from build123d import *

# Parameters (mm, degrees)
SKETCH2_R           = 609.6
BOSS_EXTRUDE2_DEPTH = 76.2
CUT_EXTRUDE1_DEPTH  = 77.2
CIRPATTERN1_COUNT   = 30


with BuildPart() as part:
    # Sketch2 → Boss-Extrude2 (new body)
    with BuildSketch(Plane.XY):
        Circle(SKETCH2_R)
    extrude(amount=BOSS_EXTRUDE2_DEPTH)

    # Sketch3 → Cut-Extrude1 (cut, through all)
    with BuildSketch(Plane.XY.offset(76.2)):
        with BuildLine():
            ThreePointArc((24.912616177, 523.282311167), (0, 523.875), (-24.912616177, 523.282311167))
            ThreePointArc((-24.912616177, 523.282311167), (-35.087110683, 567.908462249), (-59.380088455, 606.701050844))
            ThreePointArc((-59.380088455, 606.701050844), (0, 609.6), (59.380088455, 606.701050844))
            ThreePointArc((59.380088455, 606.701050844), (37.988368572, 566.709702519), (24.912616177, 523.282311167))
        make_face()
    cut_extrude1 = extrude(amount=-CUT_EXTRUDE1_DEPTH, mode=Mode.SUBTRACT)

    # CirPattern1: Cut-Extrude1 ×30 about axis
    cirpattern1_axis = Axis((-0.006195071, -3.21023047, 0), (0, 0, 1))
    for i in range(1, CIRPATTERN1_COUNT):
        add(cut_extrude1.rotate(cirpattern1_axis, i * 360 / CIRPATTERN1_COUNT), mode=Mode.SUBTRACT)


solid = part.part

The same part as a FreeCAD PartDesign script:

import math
import FreeCAD as App
import Part
import Sketcher
from FreeCAD import Vector
Q = App.Units.Quantity

doc = App.newDocument("Part")
params = doc.addObject("Spreadsheet::Sheet", "Params")
for row, (alias, value) in enumerate([
    ("sketch1_diameter", "48 in"),
    ("pad1_length", "3 in"),
    ("sketch2_radius", "9 in"),
    ("sketch2_radius2", "24 in"),
    ("sketch2_radius3", "20.625 in"),
], start=1):
    params.set(f"A{row}", alias)
    params.set(f"B{row}", "=" + value)
    params.setAlias(f"B{row}", alias)

body = doc.addObject("PartDesign::Body", "Body")

sketch1 = doc.addObject("Sketcher::SketchObject", "Sketch")
body.addObject(sketch1)
sketch1.AttachmentSupport = (doc.XY_Plane, [""])
sketch1.MapMode = "FlatFace"
sketch1.addGeometry(Part.Circle(Vector(0, 0, 0), Vector(0, 0, 1), 610), False)
sketch1.addConstraint([
    Sketcher.Constraint("Coincident", 0, 3, -1, 1),
    Sketcher.Constraint("Diameter", 0, Q("48 in")),
])
sketch1.setExpression("Constraints[1]", "Params.sketch1_diameter")
pad1 = doc.addObject("PartDesign::Pad", "Pad")
body.addObject(pad1)
pad1.Profile = sketch1
pad1.setExpression("Length", "Params.pad1_length")

sketch2 = doc.addObject("Sketcher::SketchObject", "Sketch001")
body.addObject(sketch2)
sketch2.AttachmentSupport = (doc.XY_Plane, [""])
sketch2.MapMode = "FlatFace"
sketch2.AttachmentOffset = App.Placement(Vector(0, 0, 3 * 25.4), App.Rotation())
sketch2.addGeometry([
    Part.ArcOfCircle(Part.Circle(Vector(0, 0, 0), Vector(0, 0, 1), 524), math.radians(87.27), math.radians(92.73)),
    Part.ArcOfCircle(Part.Circle(Vector(249, 479, 0), Vector(0, 0, 1), 229), math.radians(146), math.radians(169)),
    Part.ArcOfCircle(Part.Circle(Vector(0, 0, 0), Vector(0, 0, 1), 610), math.radians(84.41), math.radians(95.59)),
    Part.ArcOfCircle(Part.Circle(Vector(-162, 516, 0), Vector(0, 0, 1), 137), math.radians(3), math.radians(42)),
], False)
sketch2.addConstraint([
    Sketcher.Constraint("Coincident", 0, 1, 1, 2),
    Sketcher.Constraint("Coincident", 1, 1, 2, 1),
    Sketcher.Constraint("Coincident", 2, 2, 3, 2),
    Sketcher.Constraint("Coincident", 3, 1, 0, 2),
    Sketcher.Constraint("Coincident", 0, 3, -1, 1),
    Sketcher.Constraint("Coincident", 2, 3, -1, 1),
    Sketcher.Constraint("Radius", 1, Q("9 in")),
    Sketcher.Constraint("Radius", 2, Q("24 in")),
    Sketcher.Constraint("Radius", 0, Q("20.625 in")),
    Sketcher.Constraint("Radius", 3, Q("137.14241 mm")),
    Sketcher.Constraint("DistanceY", -1, 1, 3, 3, Q("515.537501 mm")),
    Sketcher.Constraint("DistanceX", 1, 1, 1, 3, Q("189.883801 mm")),
    Sketcher.Constraint("DistanceX", -1, 1, 1, 3, Q("249.263889 mm")),
    Sketcher.Constraint("DistanceX", 3, 3, -1, 1, Q("161.836167 mm")),
])
sketch2.setExpression("Constraints[6]", "Params.sketch2_radius")
sketch2.setExpression("Constraints[7]", "Params.sketch2_radius2")
sketch2.setExpression("Constraints[8]", "Params.sketch2_radius3")
pocket1 = doc.addObject("PartDesign::Pocket", "Pocket")
body.addObject(pocket1)
pocket1.Profile = sketch2
pocket1.Type = "ThroughAll"
doc.recompute()

datumline = doc.addObject("PartDesign::Line", "DatumLine")
body.addObject(datumline)
datumline.Placement = App.Placement(Vector(-0.006195, -3.21023, 0), App.Rotation(Vector(0, 0, 1), Vector(0, 0, 1)))
polarpattern = doc.addObject("PartDesign::PolarPattern", "PolarPattern")
body.addObject(polarpattern)
polarpattern.Originals = [pocket1]
polarpattern.Axis = (datumline, [""])
polarpattern.Angle = 360
polarpattern.Occurrences = 30
body.Tip = polarpattern

doc.recompute()
